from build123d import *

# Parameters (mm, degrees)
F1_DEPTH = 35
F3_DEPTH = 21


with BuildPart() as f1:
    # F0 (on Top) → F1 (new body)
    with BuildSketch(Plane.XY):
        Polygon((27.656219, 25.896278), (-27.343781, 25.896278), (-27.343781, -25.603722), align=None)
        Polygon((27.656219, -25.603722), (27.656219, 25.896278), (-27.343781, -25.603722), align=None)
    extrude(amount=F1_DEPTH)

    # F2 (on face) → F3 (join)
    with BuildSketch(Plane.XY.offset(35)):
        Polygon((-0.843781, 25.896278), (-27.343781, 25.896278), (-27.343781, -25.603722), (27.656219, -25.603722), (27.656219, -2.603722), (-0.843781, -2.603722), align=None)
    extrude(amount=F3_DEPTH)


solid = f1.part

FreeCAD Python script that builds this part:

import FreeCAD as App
import Part
import Sketcher
Q = App.Units.Quantity


def add_polygon(sketch, points):
    """Adds a closed chain of lines whose ends are joined by coincident constraints."""
    first, n = sketch.GeometryCount, len(points)
    for a, b in zip(points, points[1:] + points[:1]):
        sketch.addGeometry(Part.LineSegment(App.Vector(*a, 0), App.Vector(*b, 0)), False)
    for i in range(n):
        sketch.addConstraint(Sketcher.Constraint("Coincident", first + i, 2, first + (i + 1) % n, 1))

doc = App.newDocument("Part")
body = doc.addObject("PartDesign::Body", "Body")

# Sketch on XY plane
sketch1 = body.newObject("Sketcher::SketchObject", "Sketch")
sketch1.AttachmentSupport = (doc.getObject("XY_Plane"), [""])
sketch1.MapMode = "FlatFace"
add_polygon(sketch1, [(28, 26), (-27, 26), (-27, -26), (28, -26)])  # lines 0-3
sketch1.addConstraint([
    Sketcher.Constraint("Horizontal", 0),
    Sketcher.Constraint("Vertical", 1),
    Sketcher.Constraint("Horizontal", 2),
    Sketcher.Constraint("Vertical", 3),
    Sketcher.Constraint("DistanceX", 0, 2, 0, 1, Q("55 mm")),
    Sketcher.Constraint("DistanceY", 1, 2, 1, 1, Q("51.5 mm")),
    Sketcher.Constraint("DistanceX", 0, 2, -1, 1, Q("27.343781 mm")),
    Sketcher.Constraint("DistanceY", -1, 1, 0, 2, Q("25.896278 mm")),
])
pad1 = body.newObject("PartDesign::Pad", "Pad")
pad1.Profile = sketch1
pad1.Length = 35

# Sketch on XY plane
sketch2 = body.newObject("Sketcher::SketchObject", "Sketch001")
sketch2.AttachmentSupport = (doc.getObject("XY_Plane"), [""])
sketch2.MapMode = "FlatFace"
sketch2.AttachmentOffset = App.Placement(App.Vector(0, 0, 35), App.Rotation())
add_polygon(sketch2, [(-1, 26), (-27, 26), (-27, -26), (28, -26), (28, -3), (-1, -3)])  # lines 0-5
sketch2.addConstraint([
    Sketcher.Constraint("Horizontal", 0),
    Sketcher.Constraint("Vertical", 1),
    Sketcher.Constraint("Horizontal", 2),
    Sketcher.Constraint("Vertical", 3),
    Sketcher.Constraint("Horizontal", 4),
    Sketcher.Constraint("Vertical", 5),
    Sketcher.Constraint("Equal", 4, 5),
    Sketcher.Constraint("DistanceX", 2, 1, 2, 2, Q("55 mm")),
    Sketcher.Constraint("DistanceY", 3, 1, 3, 2, Q("23 mm")),
    Sketcher.Constraint("DistanceX", 0, 2, 0, 1, Q("26.5 mm")),
    Sketcher.Constraint("DistanceX", 0, 2, -1, 1, Q("27.343781 mm")),
    Sketcher.Constraint("DistanceY", 3, 2, -1, 1, Q("2.603722 mm")),
])
pad2 = body.newObject("PartDesign::Pad", "Pad001")
pad2.Profile = sketch2
pad2.Length = 21

doc.recompute()
